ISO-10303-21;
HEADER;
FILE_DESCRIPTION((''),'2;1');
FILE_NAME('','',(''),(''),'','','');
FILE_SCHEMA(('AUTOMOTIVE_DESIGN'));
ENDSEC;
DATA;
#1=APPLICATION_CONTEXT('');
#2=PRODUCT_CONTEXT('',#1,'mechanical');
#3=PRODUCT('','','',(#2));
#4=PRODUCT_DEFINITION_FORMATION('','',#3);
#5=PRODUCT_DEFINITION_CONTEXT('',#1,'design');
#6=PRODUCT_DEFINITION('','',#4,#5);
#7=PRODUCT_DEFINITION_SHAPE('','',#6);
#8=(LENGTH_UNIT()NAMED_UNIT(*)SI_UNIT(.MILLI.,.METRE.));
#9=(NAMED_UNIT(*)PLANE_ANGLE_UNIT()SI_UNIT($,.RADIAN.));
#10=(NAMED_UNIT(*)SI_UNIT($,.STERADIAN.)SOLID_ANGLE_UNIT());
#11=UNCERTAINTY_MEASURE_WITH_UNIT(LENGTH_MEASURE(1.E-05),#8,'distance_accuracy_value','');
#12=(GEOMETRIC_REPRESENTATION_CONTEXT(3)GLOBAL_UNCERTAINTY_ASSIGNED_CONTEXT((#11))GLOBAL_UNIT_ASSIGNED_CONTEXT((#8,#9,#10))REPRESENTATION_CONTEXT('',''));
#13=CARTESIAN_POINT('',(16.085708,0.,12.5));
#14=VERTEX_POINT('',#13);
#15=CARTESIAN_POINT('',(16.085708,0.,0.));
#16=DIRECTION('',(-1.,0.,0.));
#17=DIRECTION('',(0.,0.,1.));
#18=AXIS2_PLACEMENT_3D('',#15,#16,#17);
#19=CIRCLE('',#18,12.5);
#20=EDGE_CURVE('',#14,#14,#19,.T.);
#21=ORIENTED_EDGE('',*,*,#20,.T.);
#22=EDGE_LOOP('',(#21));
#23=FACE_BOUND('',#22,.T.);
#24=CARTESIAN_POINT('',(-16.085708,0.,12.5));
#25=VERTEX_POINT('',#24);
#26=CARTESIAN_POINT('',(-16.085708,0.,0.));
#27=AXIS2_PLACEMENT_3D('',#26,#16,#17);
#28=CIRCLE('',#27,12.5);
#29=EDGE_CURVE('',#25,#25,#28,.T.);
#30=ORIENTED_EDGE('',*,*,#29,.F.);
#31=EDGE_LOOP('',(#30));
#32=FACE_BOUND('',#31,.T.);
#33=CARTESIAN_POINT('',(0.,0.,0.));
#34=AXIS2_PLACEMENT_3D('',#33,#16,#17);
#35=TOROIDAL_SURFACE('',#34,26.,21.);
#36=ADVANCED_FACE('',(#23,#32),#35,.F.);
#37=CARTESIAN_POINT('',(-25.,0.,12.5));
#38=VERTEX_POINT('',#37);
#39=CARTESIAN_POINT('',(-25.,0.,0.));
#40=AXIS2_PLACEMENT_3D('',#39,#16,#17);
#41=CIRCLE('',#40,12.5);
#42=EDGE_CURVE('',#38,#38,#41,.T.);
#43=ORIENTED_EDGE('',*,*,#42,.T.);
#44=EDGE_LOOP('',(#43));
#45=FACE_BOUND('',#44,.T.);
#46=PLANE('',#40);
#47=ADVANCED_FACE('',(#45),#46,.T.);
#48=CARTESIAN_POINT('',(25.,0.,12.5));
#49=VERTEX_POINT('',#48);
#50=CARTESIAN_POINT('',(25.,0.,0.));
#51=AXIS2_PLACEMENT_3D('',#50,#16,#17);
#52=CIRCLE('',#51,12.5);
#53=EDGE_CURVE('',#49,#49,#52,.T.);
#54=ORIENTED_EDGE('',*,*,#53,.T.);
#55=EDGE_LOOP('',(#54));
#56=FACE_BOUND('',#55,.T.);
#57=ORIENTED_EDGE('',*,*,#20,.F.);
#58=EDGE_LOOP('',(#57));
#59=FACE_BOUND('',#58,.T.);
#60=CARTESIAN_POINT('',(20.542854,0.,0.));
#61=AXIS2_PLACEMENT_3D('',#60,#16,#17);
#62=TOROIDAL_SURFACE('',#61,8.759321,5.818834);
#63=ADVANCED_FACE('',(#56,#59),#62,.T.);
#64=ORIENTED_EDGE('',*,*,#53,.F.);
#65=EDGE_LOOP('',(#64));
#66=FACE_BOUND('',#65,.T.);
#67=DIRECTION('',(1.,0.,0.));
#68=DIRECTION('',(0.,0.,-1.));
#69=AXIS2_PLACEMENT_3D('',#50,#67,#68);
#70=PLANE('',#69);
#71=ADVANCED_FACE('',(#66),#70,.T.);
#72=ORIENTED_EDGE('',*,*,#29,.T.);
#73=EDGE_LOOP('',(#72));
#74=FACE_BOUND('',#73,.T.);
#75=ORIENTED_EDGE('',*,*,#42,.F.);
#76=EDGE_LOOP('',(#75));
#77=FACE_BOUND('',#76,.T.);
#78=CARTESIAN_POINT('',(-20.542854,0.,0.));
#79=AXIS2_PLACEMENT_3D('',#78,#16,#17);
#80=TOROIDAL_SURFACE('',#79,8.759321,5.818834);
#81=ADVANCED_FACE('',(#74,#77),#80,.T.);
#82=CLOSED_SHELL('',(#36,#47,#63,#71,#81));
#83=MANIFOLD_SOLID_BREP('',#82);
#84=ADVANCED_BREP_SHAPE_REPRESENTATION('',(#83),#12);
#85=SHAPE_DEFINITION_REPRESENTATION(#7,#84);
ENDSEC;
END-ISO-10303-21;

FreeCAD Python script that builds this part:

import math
import FreeCAD as App
import Part
import Sketcher

doc = App.newDocument("Part")
body = doc.addObject("PartDesign::Body", "Body")

# Sketch on XY plane
sketch1 = body.newObject("Sketcher::SketchObject", "Sketch")
sketch1.AttachmentSupport = (doc.getObject("XY_Plane"), [""])
sketch1.MapMode = "FlatFace"
sketch1.addGeometry([
    Part.LineSegment(App.Vector(25, 0, 0), App.Vector(-25, 0, 0)),  # 0
    Part.LineSegment(App.Vector(-25, 0, 0), App.Vector(-25, -12.5, 0)),  # 1
    Part.ArcOfCircle(Part.Circle(App.Vector(-20.542854, -8.759321, 0), App.Vector(0, 0, 1), 5.818834), math.radians(-139.994799), math.radians(-40.005201)),  # 2
    Part.ArcOfCircle(Part.Circle(App.Vector(0, -26, 0), App.Vector(0, 0, 1), 21), math.radians(40.005201), math.radians(139.994799)),  # 3
    Part.ArcOfCircle(Part.Circle(App.Vector(20.542854, -8.759321, 0), App.Vector(0, 0, 1), 5.818834), math.radians(-139.994799), math.radians(-40.005201)),  # 4
    Part.LineSegment(App.Vector(25, -12.5, 0), App.Vector(25, 0, 0)),  # 5
], False)
sketch1.addConstraint([
    Sketcher.Constraint("Coincident", 0, 2, 1, 1),
    Sketcher.Constraint("Coincident", 1, 2, 2, 1),
    Sketcher.Constraint("Tangent", 2, 2, 3, 2),
    Sketcher.Constraint("Tangent", 3, 1, 4, 1),
    Sketcher.Constraint("Coincident", 4, 2, 5, 1),
    Sketcher.Constraint("Coincident", 5, 2, 0, 1),
    Sketcher.Constraint("Horizontal", 0),
    Sketcher.Constraint("Vertical", 1),
    Sketcher.Constraint("Vertical", 5),
    Sketcher.Constraint("Equal", 2, 4),
    Sketcher.Constraint("Symmetric", 0, 2, 5, 2, -1, 1),
    Sketcher.Constraint("Symmetric", 2, 3, 4, 3, -2),
    Sketcher.Constraint("Horizontal", 1, 2, 2, 2),
    Sketcher.Constraint("Radius", 3, 21.0),
    Sketcher.Constraint("DistanceX", 0, 2, 0, 1, 50.0),
    Sketcher.Constraint("DistanceY", 1, 2, 1, 1, 12.5),
    Sketcher.Constraint("DistanceY", 3, 3, -1, 1, 26.0),
])
revolution = body.newObject("PartDesign::Revolution", "Revolution")
revolution.Profile = sketch1
revolution.ReferenceAxis = (sketch1, ["H_Axis"])
revolution.Angle = 360

doc.recompute()
